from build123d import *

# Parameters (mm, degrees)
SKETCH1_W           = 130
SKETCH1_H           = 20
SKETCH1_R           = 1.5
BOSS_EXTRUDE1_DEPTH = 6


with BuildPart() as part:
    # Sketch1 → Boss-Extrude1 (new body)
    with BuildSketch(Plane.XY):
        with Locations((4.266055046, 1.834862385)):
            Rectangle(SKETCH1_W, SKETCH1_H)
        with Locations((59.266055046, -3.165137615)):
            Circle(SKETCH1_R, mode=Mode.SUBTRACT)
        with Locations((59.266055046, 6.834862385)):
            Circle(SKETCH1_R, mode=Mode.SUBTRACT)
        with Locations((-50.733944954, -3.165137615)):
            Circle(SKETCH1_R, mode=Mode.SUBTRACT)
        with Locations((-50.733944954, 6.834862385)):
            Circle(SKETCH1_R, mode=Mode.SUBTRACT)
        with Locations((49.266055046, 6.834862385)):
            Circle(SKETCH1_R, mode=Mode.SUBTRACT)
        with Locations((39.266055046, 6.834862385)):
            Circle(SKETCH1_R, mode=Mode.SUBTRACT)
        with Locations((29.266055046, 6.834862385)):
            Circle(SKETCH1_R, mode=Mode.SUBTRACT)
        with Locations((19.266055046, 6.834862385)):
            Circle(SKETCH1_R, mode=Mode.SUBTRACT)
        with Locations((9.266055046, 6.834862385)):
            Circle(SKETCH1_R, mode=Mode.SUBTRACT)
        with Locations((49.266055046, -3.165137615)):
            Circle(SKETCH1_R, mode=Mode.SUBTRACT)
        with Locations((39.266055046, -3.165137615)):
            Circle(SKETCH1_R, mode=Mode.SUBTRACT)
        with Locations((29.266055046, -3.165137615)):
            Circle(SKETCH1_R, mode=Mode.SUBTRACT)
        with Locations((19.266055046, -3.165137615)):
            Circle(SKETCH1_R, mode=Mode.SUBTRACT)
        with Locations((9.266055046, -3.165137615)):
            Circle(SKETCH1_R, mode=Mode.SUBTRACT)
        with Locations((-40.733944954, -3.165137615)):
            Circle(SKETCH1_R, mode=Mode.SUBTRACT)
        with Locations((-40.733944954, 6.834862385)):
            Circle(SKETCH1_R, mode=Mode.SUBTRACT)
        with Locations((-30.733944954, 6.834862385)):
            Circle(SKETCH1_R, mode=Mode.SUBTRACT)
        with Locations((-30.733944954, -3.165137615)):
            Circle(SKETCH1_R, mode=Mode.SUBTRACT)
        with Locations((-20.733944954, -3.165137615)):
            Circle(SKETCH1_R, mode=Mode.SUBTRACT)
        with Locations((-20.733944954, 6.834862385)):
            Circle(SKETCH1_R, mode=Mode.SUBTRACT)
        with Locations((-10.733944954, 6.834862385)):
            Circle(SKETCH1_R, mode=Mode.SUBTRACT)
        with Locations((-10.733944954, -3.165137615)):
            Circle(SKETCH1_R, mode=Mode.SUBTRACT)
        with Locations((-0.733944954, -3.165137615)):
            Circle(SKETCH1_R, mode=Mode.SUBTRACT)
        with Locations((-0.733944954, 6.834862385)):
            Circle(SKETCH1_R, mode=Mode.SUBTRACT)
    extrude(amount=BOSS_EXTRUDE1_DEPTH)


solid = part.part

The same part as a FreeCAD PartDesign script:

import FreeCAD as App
import Part
import Sketcher
Q = App.Units.Quantity


def add_polygon(sketch, points):
    """Adds a closed chain of lines whose ends are joined by coincident constraints."""
    first, n = sketch.GeometryCount, len(points)
    for a, b in zip(points, points[1:] + points[:1]):
        sketch.addGeometry(Part.LineSegment(App.Vector(*a, 0), App.Vector(*b, 0)), False)
    for i in range(n):
        sketch.addConstraint(Sketcher.Constraint("Coincident", first + i, 2, first + (i + 1) % n, 1))

doc = App.newDocument("Part")
body = doc.addObject("PartDesign::Body", "Body")

# Sketch on XY plane
sketch1 = doc.addObject("Sketcher::SketchObject", "Sketch")
body.addObject(sketch1)
sketch1.AttachmentSupport = (doc.XY_Plane, [""])
sketch1.MapMode = "FlatFace"
add_polygon(sketch1, [(-60.7, 11.8), (-60.7, -8.2), (69.3, -8.2), (69.3, 11.8)])  # lines 0-3
sketch1.addGeometry(Part.Circle(App.Vector(-50.7, -3.2, 0), App.Vector(0, 0, 1), 1.5), False)  # 4
sketch1.addGeometry(Part.Circle(App.Vector(-40.7, -3.2, 0), App.Vector(0, 0, 1), 1.5), False)  # 5
sketch1.addGeometry(Part.Circle(App.Vector(-30.7, -3.2, 0), App.Vector(0, 0, 1), 1.5), False)  # 6
sketch1.addGeometry(Part.Circle(App.Vector(-20.7, -3.2, 0), App.Vector(0, 0, 1), 1.5), False)  # 7
sketch1.addGeometry(Part.Circle(App.Vector(-10.7, -3.2, 0), App.Vector(0, 0, 1), 1.5), False)  # 8
sketch1.addGeometry(Part.Circle(App.Vector(-0.7, -3.2, 0), App.Vector(0, 0, 1), 1.5), False)  # 9
sketch1.addGeometry(Part.Circle(App.Vector(9.3, -3.2, 0), App.Vector(0, 0, 1), 1.5), False)  # 10
sketch1.addGeometry(Part.Circle(App.Vector(19.3, -3.2, 0), App.Vector(0, 0, 1), 1.5), False)  # 11
sketch1.addGeometry(Part.Circle(App.Vector(29.3, -3.2, 0), App.Vector(0, 0, 1), 1.5), False)  # 12
sketch1.addGeometry(Part.Circle(App.Vector(39.3, -3.2, 0), App.Vector(0, 0, 1), 1.5), False)  # 13
sketch1.addGeometry(Part.Circle(App.Vector(49.3, -3.2, 0), App.Vector(0, 0, 1), 1.5), False)  # 14
sketch1.addGeometry(Part.Circle(App.Vector(59.3, -3.2, 0), App.Vector(0, 0, 1), 1.5), False)  # 15
sketch1.addGeometry(Part.Circle(App.Vector(-50.7, 6.8, 0), App.Vector(0, 0, 1), 1.5), False)  # 16
sketch1.addGeometry(Part.Circle(App.Vector(-40.7, 6.8, 0), App.Vector(0, 0, 1), 1.5), False)  # 17
sketch1.addGeometry(Part.Circle(App.Vector(-30.7, 6.8, 0), App.Vector(0, 0, 1), 1.5), False)  # 18
sketch1.addGeometry(Part.Circle(App.Vector(-20.7, 6.8, 0), App.Vector(0, 0, 1), 1.5), False)  # 19
sketch1.addGeometry(Part.Circle(App.Vector(-10.7, 6.8, 0), App.Vector(0, 0, 1), 1.5), False)  # 20
sketch1.addGeometry(Part.Circle(App.Vector(-0.7, 6.8, 0), App.Vector(0, 0, 1), 1.5), False)  # 21
sketch1.addGeometry(Part.Circle(App.Vector(9.3, 6.8, 0), App.Vector(0, 0, 1), 1.5), False)  # 22
sketch1.addGeometry(Part.Circle(App.Vector(19.3, 6.8, 0), App.Vector(0, 0, 1), 1.5), False)  # 23
sketch1.addGeometry(Part.Circle(App.Vector(29.3, 6.8, 0), App.Vector(0, 0, 1), 1.5), False)  # 24
sketch1.addGeometry(Part.Circle(App.Vector(39.3, 6.8, 0), App.Vector(0, 0, 1), 1.5), False)  # 25
sketch1.addGeometry(Part.Circle(App.Vector(49.3, 6.8, 0), App.Vector(0, 0, 1), 1.5), False)  # 26
sketch1.addGeometry(Part.Circle(App.Vector(59.3, 6.8, 0), App.Vector(0, 0, 1), 1.5), False)  # 27
sketch1.addConstraint([
    Sketcher.Constraint("Vertical", 0),
    Sketcher.Constraint("Horizontal", 1),
    Sketcher.Constraint("Vertical", 2),
    Sketcher.Constraint("Horizontal", 3),
    Sketcher.Constraint("Equal", 4, 5),
    Sketcher.Constraint("Equal", 5, 6),
    Sketcher.Constraint("Equal", 6, 7),
    Sketcher.Constraint("Equal", 7, 8),
    Sketcher.Constraint("Equal", 8, 9),
    Sketcher.Constraint("Equal", 9, 10),
    Sketcher.Constraint("Equal", 10, 11),
    Sketcher.Constraint("Equal", 11, 12),
    Sketcher.Constraint("Equal", 12, 13),
    Sketcher.Constraint("Equal", 13, 14),
    Sketcher.Constraint("Equal", 14, 15),
    Sketcher.Constraint("Equal", 15, 16),
    Sketcher.Constraint("Equal", 16, 17),
    Sketcher.Constraint("Equal", 17, 18),
    Sketcher.Constraint("Equal", 18, 19),
    Sketcher.Constraint("Equal", 19, 20),
    Sketcher.Constraint("Equal", 20, 21),
    Sketcher.Constraint("Equal", 21, 22),
    Sketcher.Constraint("Equal", 22, 23),
    Sketcher.Constraint("Equal", 23, 24),
    Sketcher.Constraint("Equal", 24, 25),
    Sketcher.Constraint("Equal", 25, 26),
    Sketcher.Constraint("Equal", 26, 27),
    Sketcher.Constraint("Horizontal", 4, 3, 5, 3),
    Sketcher.Constraint("Horizontal", 5, 3, 6, 3),
    Sketcher.Constraint("Horizontal", 6, 3, 7, 3),
    Sketcher.Constraint("Horizontal", 7, 3, 8, 3),
    Sketcher.Constraint("Horizontal", 8, 3, 9, 3),
    Sketcher.Constraint("Horizontal", 9, 3, 10, 3),
    Sketcher.Constraint("Horizontal", 10, 3, 11, 3),
    Sketcher.Constraint("Horizontal", 11, 3, 12, 3),
    Sketcher.Constraint("Horizontal", 12, 3, 13, 3),
    Sketcher.Constraint("Horizontal", 13, 3, 14, 3),
    Sketcher.Constraint("Horizontal", 14, 3, 15, 3),
    Sketcher.Constraint("Horizontal", 16, 3, 17, 3),
    Sketcher.Constraint("Horizontal", 17, 3, 18, 3),
    Sketcher.Constraint("Horizontal", 18, 3, 19, 3),
    Sketcher.Constraint("Horizontal", 19, 3, 20, 3),
    Sketcher.Constraint("Horizontal", 20, 3, 21, 3),
    Sketcher.Constraint("Horizontal", 21, 3, 22, 3),
    Sketcher.Constraint("Horizontal", 22, 3, 23, 3),
    Sketcher.Constraint("Horizontal", 23, 3, 24, 3),
    Sketcher.Constraint("Horizontal", 24, 3, 25, 3),
    Sketcher.Constraint("Horizontal", 25, 3, 26, 3),
    Sketcher.Constraint("Horizontal", 26, 3, 27, 3),
    Sketcher.Constraint("Vertical", 4, 3, 16, 3),
    Sketcher.Constraint("Vertical", 5, 3, 17, 3),
    Sketcher.Constraint("Vertical", 6, 3, 18, 3),
    Sketcher.Constraint("Vertical", 7, 3, 19, 3),
    Sketcher.Constraint("Vertical", 8, 3, 20, 3),
    Sketcher.Constraint("Vertical", 9, 3, 21, 3),
    Sketcher.Constraint("Vertical", 10, 3, 22, 3),
    Sketcher.Constraint("Vertical", 11, 3, 23, 3),
    Sketcher.Constraint("Vertical", 12, 3, 24, 3),
    Sketcher.Constraint("Vertical", 13, 3, 25, 3),
    Sketcher.Constraint("Vertical", 14, 3, 26, 3),
    Sketcher.Constraint("Vertical", 15, 3, 27, 3),
    Sketcher.Constraint("Diameter", 4, Q("3 mm")),
    Sketcher.Constraint("DistanceX", 1, 1, 1, 2, Q("130 mm")),
    Sketcher.Constraint("DistanceY", 0, 2, 0, 1, Q("20 mm")),
    Sketcher.Constraint("DistanceX", 4, 3, 5, 3, Q("10 mm")),
    Sketcher.Constraint("DistanceX", 5, 3, 6, 3, Q("10 mm")),
    Sketcher.Constraint("DistanceX", 6, 3, 7, 3, Q("10 mm")),
    Sketcher.Constraint("DistanceX", 7, 3, 8, 3, Q("10 mm")),
    Sketcher.Constraint("DistanceX", 8, 3, 9, 3, Q("10 mm")),
    Sketcher.Constraint("DistanceX", 9, 3, 10, 3, Q("10 mm")),
    Sketcher.Constraint("DistanceX", 10, 3, 11, 3, Q("10 mm")),
    Sketcher.Constraint("DistanceX", 11, 3, 12, 3, Q("10 mm")),
    Sketcher.Constraint("DistanceX", 12, 3, 13, 3, Q("10 mm")),
    Sketcher.Constraint("DistanceX", 13, 3, 14, 3, Q("10 mm")),
    Sketcher.Constraint("DistanceX", 14, 3, 15, 3, Q("10 mm")),
    Sketcher.Constraint("DistanceY", 4, 3, 16, 3, Q("10 mm")),
    Sketcher.Constraint("DistanceX", 0, 2, 4, 3, Q("10 mm")),
    Sketcher.Constraint("DistanceY", 0, 2, 4, 3, Q("5 mm")),
    Sketcher.Constraint("DistanceX", 4, 3, -1, 1, Q("50.733945 mm")),
    Sketcher.Constraint("DistanceY", 4, 3, -1, 1, Q("3.165138 mm")),
])
pad1 = doc.addObject("PartDesign::Pad", "Pad")
body.addObject(pad1)
pad1.Profile = sketch1
pad1.Length = 6

doc.recompute()
